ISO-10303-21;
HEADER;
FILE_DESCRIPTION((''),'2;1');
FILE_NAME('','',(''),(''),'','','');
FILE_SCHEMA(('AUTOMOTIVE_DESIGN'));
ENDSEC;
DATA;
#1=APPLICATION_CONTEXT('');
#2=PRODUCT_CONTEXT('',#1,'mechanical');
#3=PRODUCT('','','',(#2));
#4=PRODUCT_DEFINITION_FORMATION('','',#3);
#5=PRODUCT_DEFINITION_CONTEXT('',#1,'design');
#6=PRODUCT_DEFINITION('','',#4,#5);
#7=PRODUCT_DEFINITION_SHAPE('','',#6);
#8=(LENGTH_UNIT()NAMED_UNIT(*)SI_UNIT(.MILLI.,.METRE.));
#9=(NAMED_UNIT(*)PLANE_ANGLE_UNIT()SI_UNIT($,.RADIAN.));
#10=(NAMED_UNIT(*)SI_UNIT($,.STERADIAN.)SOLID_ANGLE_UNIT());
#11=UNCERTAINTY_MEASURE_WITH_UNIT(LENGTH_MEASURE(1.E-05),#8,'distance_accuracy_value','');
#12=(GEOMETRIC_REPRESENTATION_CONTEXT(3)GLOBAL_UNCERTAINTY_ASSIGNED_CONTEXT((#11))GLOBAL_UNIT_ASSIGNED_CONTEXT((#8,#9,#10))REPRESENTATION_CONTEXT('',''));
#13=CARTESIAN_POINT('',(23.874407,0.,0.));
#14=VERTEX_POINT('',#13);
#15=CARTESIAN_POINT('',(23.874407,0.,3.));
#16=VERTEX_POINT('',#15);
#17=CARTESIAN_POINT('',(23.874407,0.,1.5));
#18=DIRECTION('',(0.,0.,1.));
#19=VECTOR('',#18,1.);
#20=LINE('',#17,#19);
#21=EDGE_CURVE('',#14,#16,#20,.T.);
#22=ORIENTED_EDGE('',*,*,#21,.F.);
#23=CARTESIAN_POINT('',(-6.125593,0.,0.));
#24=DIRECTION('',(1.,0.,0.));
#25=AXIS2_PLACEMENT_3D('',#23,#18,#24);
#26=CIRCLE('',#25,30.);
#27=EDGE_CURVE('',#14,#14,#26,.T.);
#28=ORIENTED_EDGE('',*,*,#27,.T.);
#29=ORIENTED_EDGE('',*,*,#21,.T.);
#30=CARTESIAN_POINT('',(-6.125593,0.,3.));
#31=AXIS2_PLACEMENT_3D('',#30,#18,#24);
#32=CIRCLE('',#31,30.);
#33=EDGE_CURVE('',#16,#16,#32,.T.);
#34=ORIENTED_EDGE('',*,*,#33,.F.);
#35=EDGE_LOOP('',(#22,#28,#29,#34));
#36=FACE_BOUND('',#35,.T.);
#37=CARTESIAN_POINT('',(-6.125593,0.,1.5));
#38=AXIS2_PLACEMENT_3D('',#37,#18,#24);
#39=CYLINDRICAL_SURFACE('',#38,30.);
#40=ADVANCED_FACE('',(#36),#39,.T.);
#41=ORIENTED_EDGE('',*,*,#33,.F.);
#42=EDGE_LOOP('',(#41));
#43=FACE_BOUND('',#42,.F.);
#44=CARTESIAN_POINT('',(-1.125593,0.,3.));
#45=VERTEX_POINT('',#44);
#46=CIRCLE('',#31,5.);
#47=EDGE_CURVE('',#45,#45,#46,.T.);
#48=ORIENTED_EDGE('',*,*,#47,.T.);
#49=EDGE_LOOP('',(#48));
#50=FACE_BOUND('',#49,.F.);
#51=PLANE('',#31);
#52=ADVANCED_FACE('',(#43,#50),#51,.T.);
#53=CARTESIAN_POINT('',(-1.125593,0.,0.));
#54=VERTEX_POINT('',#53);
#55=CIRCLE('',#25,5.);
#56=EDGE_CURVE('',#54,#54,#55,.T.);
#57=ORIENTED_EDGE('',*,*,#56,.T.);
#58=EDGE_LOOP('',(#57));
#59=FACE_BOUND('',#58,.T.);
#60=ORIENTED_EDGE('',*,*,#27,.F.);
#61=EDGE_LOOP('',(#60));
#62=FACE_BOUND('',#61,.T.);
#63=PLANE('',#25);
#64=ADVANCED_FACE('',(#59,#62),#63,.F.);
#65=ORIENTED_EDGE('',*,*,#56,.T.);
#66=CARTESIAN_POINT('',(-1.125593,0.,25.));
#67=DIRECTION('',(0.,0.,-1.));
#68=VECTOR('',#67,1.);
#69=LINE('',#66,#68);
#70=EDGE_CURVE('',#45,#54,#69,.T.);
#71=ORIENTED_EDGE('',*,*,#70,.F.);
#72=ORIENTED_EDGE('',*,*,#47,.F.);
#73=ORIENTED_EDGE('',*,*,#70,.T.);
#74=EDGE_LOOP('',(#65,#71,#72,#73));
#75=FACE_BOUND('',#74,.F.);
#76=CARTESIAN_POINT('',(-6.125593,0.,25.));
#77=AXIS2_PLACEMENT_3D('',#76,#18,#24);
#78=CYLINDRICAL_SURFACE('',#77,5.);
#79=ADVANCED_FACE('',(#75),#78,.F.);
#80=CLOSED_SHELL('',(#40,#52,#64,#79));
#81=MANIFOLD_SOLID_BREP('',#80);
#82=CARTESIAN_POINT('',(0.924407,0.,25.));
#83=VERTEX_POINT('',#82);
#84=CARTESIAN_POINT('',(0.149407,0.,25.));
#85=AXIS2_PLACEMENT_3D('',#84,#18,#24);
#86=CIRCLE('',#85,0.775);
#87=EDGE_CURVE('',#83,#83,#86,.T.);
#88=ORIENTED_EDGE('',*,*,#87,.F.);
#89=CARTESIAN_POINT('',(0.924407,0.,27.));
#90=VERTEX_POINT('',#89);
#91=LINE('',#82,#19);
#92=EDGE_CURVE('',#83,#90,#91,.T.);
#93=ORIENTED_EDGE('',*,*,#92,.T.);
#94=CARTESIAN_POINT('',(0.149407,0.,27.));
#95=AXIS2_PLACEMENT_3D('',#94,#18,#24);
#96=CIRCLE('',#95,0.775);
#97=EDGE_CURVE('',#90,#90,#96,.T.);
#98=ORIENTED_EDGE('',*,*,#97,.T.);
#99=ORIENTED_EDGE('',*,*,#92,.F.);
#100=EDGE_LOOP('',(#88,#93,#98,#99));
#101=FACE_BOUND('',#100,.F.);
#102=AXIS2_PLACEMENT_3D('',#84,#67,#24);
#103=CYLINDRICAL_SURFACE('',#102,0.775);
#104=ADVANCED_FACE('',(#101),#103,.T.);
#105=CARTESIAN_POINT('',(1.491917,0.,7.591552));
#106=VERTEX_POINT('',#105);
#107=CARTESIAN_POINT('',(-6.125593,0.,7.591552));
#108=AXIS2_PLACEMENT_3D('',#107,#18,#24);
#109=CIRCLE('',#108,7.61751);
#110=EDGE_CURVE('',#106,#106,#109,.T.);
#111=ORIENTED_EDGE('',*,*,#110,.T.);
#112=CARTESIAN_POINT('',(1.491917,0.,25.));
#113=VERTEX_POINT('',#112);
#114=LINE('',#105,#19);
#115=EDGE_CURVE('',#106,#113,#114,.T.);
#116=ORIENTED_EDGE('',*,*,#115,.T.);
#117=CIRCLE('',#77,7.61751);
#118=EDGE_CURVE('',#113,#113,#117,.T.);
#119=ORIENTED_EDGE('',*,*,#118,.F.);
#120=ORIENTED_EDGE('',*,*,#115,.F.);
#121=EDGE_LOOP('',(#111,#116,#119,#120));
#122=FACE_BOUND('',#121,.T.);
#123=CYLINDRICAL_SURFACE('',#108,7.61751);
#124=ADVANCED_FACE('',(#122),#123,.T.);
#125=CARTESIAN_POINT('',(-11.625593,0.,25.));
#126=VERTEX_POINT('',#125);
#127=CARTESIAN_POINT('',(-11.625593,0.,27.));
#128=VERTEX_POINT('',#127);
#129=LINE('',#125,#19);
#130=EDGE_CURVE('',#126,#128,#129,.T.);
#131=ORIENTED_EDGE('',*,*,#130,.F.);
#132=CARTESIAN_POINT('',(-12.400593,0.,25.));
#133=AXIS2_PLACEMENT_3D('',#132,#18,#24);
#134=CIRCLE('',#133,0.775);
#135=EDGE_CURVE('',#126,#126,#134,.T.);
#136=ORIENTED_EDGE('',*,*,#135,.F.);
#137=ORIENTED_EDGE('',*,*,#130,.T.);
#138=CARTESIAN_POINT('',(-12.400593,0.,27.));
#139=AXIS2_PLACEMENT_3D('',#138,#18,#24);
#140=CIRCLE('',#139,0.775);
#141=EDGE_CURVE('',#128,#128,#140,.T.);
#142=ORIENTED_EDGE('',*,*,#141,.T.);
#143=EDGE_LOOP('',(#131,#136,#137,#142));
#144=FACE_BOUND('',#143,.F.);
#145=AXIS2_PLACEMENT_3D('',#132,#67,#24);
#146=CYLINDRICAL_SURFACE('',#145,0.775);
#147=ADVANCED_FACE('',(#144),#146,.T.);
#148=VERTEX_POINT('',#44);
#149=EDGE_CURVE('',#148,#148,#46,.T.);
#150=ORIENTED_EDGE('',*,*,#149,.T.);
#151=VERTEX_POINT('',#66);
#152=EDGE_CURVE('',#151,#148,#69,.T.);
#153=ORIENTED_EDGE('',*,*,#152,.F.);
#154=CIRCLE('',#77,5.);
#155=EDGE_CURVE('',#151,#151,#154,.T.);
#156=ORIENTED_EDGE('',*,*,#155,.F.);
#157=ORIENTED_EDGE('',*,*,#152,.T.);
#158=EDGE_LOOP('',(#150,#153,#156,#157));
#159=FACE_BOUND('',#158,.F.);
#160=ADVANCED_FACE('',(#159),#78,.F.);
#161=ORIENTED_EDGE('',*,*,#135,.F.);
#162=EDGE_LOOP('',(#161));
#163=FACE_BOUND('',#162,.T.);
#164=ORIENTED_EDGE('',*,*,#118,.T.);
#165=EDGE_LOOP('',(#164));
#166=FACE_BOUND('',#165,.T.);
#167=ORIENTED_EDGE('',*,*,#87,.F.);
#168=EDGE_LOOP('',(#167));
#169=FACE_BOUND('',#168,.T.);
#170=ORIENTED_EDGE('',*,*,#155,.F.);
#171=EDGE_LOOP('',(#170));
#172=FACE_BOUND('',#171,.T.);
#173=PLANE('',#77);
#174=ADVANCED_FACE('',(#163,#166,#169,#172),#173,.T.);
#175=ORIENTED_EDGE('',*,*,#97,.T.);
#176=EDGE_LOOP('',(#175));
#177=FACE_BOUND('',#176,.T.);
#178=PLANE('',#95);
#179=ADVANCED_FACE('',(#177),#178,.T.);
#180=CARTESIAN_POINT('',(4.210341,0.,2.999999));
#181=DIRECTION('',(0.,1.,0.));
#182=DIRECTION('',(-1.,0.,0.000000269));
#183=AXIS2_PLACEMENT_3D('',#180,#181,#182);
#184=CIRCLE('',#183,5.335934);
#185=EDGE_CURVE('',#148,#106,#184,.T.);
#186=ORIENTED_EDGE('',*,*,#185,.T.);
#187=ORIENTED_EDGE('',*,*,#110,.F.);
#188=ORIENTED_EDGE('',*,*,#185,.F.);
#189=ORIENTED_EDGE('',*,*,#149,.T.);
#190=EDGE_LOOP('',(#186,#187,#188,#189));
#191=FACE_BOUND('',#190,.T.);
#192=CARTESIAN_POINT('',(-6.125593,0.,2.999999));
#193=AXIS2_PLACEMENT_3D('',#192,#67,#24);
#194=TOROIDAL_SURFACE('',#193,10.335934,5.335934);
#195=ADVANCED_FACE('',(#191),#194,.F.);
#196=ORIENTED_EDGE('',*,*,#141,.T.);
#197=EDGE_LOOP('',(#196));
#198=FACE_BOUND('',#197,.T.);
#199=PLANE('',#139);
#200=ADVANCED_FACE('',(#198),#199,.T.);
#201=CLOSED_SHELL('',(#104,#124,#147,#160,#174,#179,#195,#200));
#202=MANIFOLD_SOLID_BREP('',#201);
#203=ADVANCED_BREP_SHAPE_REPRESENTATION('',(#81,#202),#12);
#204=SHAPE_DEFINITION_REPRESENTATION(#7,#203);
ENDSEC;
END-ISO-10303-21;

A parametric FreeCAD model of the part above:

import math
import FreeCAD as App
import Part
import Sketcher
Q = App.Units.Quantity

doc = App.newDocument("Part")
body = doc.addObject("PartDesign::Body", "Body")
body.AllowCompound = True

# Sketch on XZ plane
sketch1 = doc.addObject("Sketcher::SketchObject", "Sketch")
body.addObject(sketch1)
sketch1.AttachmentSupport = (doc.XZ_Plane, [""])
sketch1.MapMode = "FlatFace"
sketch1.addGeometry(Part.LineSegment(App.Vector(23.9, 0, 0), App.Vector(23.9, 3, 0)), False)
sketch1.addGeometry(Part.LineSegment(App.Vector(23.9, 3, 0), App.Vector(-1.1, 3, 0)), False)
sketch1.addGeometry(Part.ArcOfCircle(Part.Circle(App.Vector(4.2, 3, 0), App.Vector(0, 0, 1), 5.3), math.radians(121), math.radians(180)), False)
sketch1.addGeometry(Part.LineSegment(App.Vector(1.5, 7.6, 0), App.Vector(1.5, 25, 0)), False)
sketch1.addGeometry(Part.LineSegment(App.Vector(1.5, 25, 0), App.Vector(-6.1, 25, 0)), False)
sketch1.addGeometry(Part.LineSegment(App.Vector(-6.1, 25, 0), App.Vector(-6.1, 0, 0)), False)
sketch1.addGeometry(Part.LineSegment(App.Vector(-6.1, 0, 0), App.Vector(23.9, 0, 0)), False)
sketch1.addGeometry(Part.LineSegment(App.Vector(-6.1, 0, 0), App.Vector(-6.1, 25, 0)), True)  # axis
sketch1.addConstraint(Sketcher.Constraint("Coincident", 0, 2, 1, 1))
sketch1.addConstraint(Sketcher.Constraint("Coincident", 1, 2, 2, 2))
sketch1.addConstraint(Sketcher.Constraint("Coincident", 2, 1, 3, 1))
sketch1.addConstraint(Sketcher.Constraint("Coincident", 3, 2, 4, 1))
sketch1.addConstraint(Sketcher.Constraint("Coincident", 4, 2, 5, 1))
sketch1.addConstraint(Sketcher.Constraint("Coincident", 5, 2, 6, 1))
sketch1.addConstraint(Sketcher.Constraint("Coincident", 6, 2, 0, 1))
sketch1.addConstraint(Sketcher.Constraint("Vertical", 0))
sketch1.addConstraint(Sketcher.Constraint("Horizontal", 1))
sketch1.addConstraint(Sketcher.Constraint("Vertical", 3))
sketch1.addConstraint(Sketcher.Constraint("Horizontal", 4))
sketch1.addConstraint(Sketcher.Constraint("Vertical", 5))
sketch1.addConstraint(Sketcher.Constraint("Horizontal", 6))
sketch1.addConstraint(Sketcher.Constraint("Vertical", 7))
sketch1.addConstraint(Sketcher.Constraint("Coincident", 7, 1, 5, 2))
sketch1.addConstraint(Sketcher.Constraint("PointOnObject", 5, 2, -1))
sketch1.addConstraint(Sketcher.Constraint("Horizontal", 2, 3, 0, 2))
sketch1.addConstraint(Sketcher.Constraint("Horizontal", 3, 2, 7, 2))
sketch1.addConstraint(Sketcher.Constraint("Equal", 1, 5))
sketch1.addConstraint(Sketcher.Constraint("DistanceX", 1, 2, 1, 1, Q("25 mm")))
sketch1.addConstraint(Sketcher.Constraint("DistanceX", 6, 1, 6, 2, Q("30 mm")))
sketch1.addConstraint(Sketcher.Constraint("DistanceY", 0, 1, 0, 2, Q("3 mm")))
sketch1.addConstraint(Sketcher.Constraint("Radius", 2, Q("5.335934 mm")))
sketch1.addConstraint(Sketcher.Constraint("DistanceX", 4, 2, 4, 1, Q("7.61751 mm")))
sketch1.addConstraint(Sketcher.Constraint("DistanceX", -1, 1, 2, 3, Q("4.210341 mm")))
revolution = doc.addObject("PartDesign::Revolution", "Revolution")
body.addObject(revolution)
revolution.Profile = sketch1
revolution.ReferenceAxis = (sketch1, ["Axis0"])
revolution.Angle = 360

# Sketch on XY plane
sketch2 = doc.addObject("Sketcher::SketchObject", "Sketch001")
body.addObject(sketch2)
sketch2.AttachmentSupport = (doc.XY_Plane, [""])
sketch2.MapMode = "FlatFace"
sketch2.AttachmentOffset = App.Placement(App.Vector(0, 0, 25), App.Rotation())
sketch2.addGeometry(Part.Circle(App.Vector(-6, 0, 0), App.Vector(0, 0, 1), 5), False)
sketch2.addConstraint(Sketcher.Constraint("PointOnObject", 0, 3, -1))
sketch2.addConstraint(Sketcher.Constraint("Diameter", 0, Q("10 mm")))
sketch2.addConstraint(Sketcher.Constraint("DistanceX", 0, 3, -1, 1, Q("6.125593 mm")))
pocket1 = doc.addObject("PartDesign::Pocket", "Pocket")
body.addObject(pocket1)
pocket1.Profile = sketch2
pocket1.Length = 34.4

# Sketch on XY plane
sketch3 = doc.addObject("Sketcher::SketchObject", "Sketch002")
body.addObject(sketch3)
sketch3.AttachmentSupport = (doc.XY_Plane, [""])
sketch3.MapMode = "FlatFace"
sketch3.AttachmentOffset = App.Placement(App.Vector(0, 0, 25), App.Rotation())
sketch3.addGeometry(Part.Circle(App.Vector(-12.4, 0, 0), App.Vector(0, 0, 1), 0.8), False)
sketch3.addGeometry(Part.Circle(App.Vector(0.1, 0, 0), App.Vector(0, 0, 1), 0.8), False)
sketch3.addConstraint(Sketcher.Constraint("Equal", 0, 1))
sketch3.addConstraint(Sketcher.Constraint("PointOnObject", 0, 3, -1))
sketch3.addConstraint(Sketcher.Constraint("PointOnObject", 1, 3, -1))
sketch3.addConstraint(Sketcher.Constraint("Diameter", 0, Q("1.55 mm")))
sketch3.addConstraint(Sketcher.Constraint("DistanceX", 0, 3, 1, 3, Q("12.55 mm")))
sketch3.addConstraint(Sketcher.Constraint("DistanceX", 0, 3, -1, 1, Q("12.400593 mm")))
pad1 = doc.addObject("PartDesign::Pad", "Pad")
body.addObject(pad1)
pad1.Profile = sketch3
pad1.Length = 2

doc.recompute()
